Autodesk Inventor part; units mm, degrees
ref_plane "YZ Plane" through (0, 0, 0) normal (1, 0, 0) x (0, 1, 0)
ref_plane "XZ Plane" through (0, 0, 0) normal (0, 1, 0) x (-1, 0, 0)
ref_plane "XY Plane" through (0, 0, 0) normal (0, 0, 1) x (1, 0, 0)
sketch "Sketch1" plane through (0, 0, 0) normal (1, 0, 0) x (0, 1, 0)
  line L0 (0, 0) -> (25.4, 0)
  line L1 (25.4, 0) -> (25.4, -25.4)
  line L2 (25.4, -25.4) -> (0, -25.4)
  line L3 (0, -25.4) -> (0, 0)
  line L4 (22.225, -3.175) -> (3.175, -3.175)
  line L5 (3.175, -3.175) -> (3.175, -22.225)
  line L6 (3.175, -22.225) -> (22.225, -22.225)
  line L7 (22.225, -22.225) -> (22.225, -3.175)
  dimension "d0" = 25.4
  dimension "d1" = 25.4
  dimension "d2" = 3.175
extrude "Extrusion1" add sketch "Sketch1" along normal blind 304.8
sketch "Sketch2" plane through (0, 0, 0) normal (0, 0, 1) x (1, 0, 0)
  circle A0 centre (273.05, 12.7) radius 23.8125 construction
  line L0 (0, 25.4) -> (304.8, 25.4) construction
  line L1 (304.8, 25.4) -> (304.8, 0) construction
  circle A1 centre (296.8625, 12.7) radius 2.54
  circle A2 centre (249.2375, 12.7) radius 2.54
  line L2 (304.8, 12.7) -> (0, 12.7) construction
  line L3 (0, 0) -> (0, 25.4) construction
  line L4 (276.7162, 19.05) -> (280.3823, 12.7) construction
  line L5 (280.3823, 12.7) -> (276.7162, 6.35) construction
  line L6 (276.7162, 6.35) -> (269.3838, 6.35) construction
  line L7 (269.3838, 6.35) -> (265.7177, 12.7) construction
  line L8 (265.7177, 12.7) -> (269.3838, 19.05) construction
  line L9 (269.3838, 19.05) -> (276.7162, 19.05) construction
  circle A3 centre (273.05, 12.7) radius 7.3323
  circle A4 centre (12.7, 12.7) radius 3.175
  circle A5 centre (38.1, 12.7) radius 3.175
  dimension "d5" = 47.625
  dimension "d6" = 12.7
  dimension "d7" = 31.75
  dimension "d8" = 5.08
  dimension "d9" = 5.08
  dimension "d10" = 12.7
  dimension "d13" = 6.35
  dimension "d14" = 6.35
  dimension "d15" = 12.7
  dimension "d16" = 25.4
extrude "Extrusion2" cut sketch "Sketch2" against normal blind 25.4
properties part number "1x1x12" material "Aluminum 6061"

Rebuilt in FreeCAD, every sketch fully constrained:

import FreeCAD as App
import Part
import Sketcher

V = App.Vector
Q = App.Units.Quantity

doc = App.newDocument("Part")
body = doc.addObject("PartDesign::Body", "Body")

sketch1 = body.newObject("Sketcher::SketchObject", "Sketch")
sketch1.AttachmentSupport = (doc.getObject("YZ_Plane"), [""])
sketch1.MapMode = "FlatFace"
sketch1.addGeometry(Part.LineSegment(V(25.4, 0, 0), V(0, 0, 0)), False)
sketch1.addGeometry(Part.LineSegment(V(0, 0, 0), V(0, -25.4, 0)), False)
sketch1.addGeometry(Part.LineSegment(V(0, -25.4, 0), V(25.4, -25.4, 0)), False)
sketch1.addGeometry(Part.LineSegment(V(25.4, -25.4, 0), V(25.4, 0, 0)), False)
sketch1.addGeometry(Part.LineSegment(V(3.175, -3.175, 0), V(22.225, -3.175, 0)), False)
sketch1.addGeometry(Part.LineSegment(V(22.225, -3.175, 0), V(22.225, -22.225, 0)), False)
sketch1.addGeometry(Part.LineSegment(V(22.225, -22.225, 0), V(3.175, -22.225, 0)), False)
sketch1.addGeometry(Part.LineSegment(V(3.175, -22.225, 0), V(3.175, -3.175, 0)), False)
sketch1.addConstraint(Sketcher.Constraint("Coincident", 0, 2, 1, 1))
sketch1.addConstraint(Sketcher.Constraint("Coincident", 1, 2, 2, 1))
sketch1.addConstraint(Sketcher.Constraint("Coincident", 2, 2, 3, 1))
sketch1.addConstraint(Sketcher.Constraint("Coincident", 3, 2, 0, 1))
sketch1.addConstraint(Sketcher.Constraint("Coincident", 4, 2, 5, 1))
sketch1.addConstraint(Sketcher.Constraint("Coincident", 5, 2, 6, 1))
sketch1.addConstraint(Sketcher.Constraint("Coincident", 6, 2, 7, 1))
sketch1.addConstraint(Sketcher.Constraint("Coincident", 7, 2, 4, 1))
sketch1.addConstraint(Sketcher.Constraint("Horizontal", 0))
sketch1.addConstraint(Sketcher.Constraint("Vertical", 1))
sketch1.addConstraint(Sketcher.Constraint("Horizontal", 2))
sketch1.addConstraint(Sketcher.Constraint("Vertical", 3))
sketch1.addConstraint(Sketcher.Constraint("Horizontal", 4))
sketch1.addConstraint(Sketcher.Constraint("Vertical", 5))
sketch1.addConstraint(Sketcher.Constraint("Horizontal", 6))
sketch1.addConstraint(Sketcher.Constraint("Vertical", 7))
sketch1.addConstraint(Sketcher.Constraint("Coincident", 0, 2, -1, 1))
sketch1.addConstraint(Sketcher.Constraint("Equal", 2, 1))
sketch1.addConstraint(Sketcher.Constraint("Equal", 6, 5))
sketch1.addConstraint(Sketcher.Constraint("DistanceX", 0, 2, 0, 1, Q("1 in")))
sketch1.addConstraint(Sketcher.Constraint("DistanceY", 4, 2, -1, 1, Q("0.125 in")))
sketch1.addConstraint(Sketcher.Constraint("DistanceX", -1, 1, 6, 2, Q("0.125 in")))
sketch1.addConstraint(Sketcher.Constraint("DistanceX", 4, 2, 3, 2, Q("0.125 in")))
pad1 = body.newObject("PartDesign::Pad", "Pad")
pad1.Profile = sketch1
pad1.Length = Q("12 in")

sketch2 = body.newObject("Sketcher::SketchObject", "Sketch001")
sketch2.AttachmentSupport = (doc.getObject("XY_Plane"), [""])
sketch2.MapMode = "FlatFace"
sketch2.addGeometry(Part.Circle(V(296.8625, 12.7, 0), V(0, 0, 1), 2.54), False)
sketch2.addGeometry(Part.Circle(V(249.2375, 12.7, 0), V(0, 0, 1), 2.54), False)
sketch2.addGeometry(Part.Circle(V(273.05, 12.7, 0), V(0, 0, 1), 7.3323), False)
sketch2.addGeometry(Part.Circle(V(12.7, 12.7, 0), V(0, 0, 1), 3.175), False)
sketch2.addGeometry(Part.Circle(V(38.1, 12.7, 0), V(0, 0, 1), 3.175), False)
sketch2.addConstraint(Sketcher.Constraint("Equal", 0, 1))
sketch2.addConstraint(Sketcher.Constraint("Equal", 3, 4))
sketch2.addConstraint(Sketcher.Constraint("Horizontal", 0, 3, 1, 3))
sketch2.addConstraint(Sketcher.Constraint("Horizontal", 1, 3, 2, 3))
sketch2.addConstraint(Sketcher.Constraint("Horizontal", 2, 3, 3, 3))
sketch2.addConstraint(Sketcher.Constraint("Horizontal", 3, 3, 4, 3))
sketch2.addConstraint(Sketcher.Constraint("Diameter", 0, Q("0.2 in")))
sketch2.addConstraint(Sketcher.Constraint("Diameter", 3, Q("0.25 in")))
sketch2.addConstraint(Sketcher.Constraint("DistanceX", 3, 3, 4, 3, Q("1 in")))
sketch2.addConstraint(Sketcher.Constraint("DistanceY", -1, 1, 0, 3, Q("0.5 in")))
sketch2.addConstraint(Sketcher.Constraint("DistanceX", -1, 1, 3, 3, Q("0.5 in")))
sketch2.addConstraint(Sketcher.Constraint("DistanceX", 1, 3, 0, 3, Q("1.875 in")))
sketch2.addConstraint(Sketcher.Constraint("Diameter", 2, Q("14.6646 mm")))
sketch2.addConstraint(Sketcher.Constraint("DistanceX", -1, 1, 2, 3, Q("10.75 in")))
sketch2.addConstraint(Sketcher.Constraint("DistanceX", -1, 1, 0, 3, Q("11.6875 in")))
pocket1 = body.newObject("PartDesign::Pocket", "Pocket")
pocket1.Profile = sketch2
pocket1.Length = Q("1 in")

doc.recompute()
